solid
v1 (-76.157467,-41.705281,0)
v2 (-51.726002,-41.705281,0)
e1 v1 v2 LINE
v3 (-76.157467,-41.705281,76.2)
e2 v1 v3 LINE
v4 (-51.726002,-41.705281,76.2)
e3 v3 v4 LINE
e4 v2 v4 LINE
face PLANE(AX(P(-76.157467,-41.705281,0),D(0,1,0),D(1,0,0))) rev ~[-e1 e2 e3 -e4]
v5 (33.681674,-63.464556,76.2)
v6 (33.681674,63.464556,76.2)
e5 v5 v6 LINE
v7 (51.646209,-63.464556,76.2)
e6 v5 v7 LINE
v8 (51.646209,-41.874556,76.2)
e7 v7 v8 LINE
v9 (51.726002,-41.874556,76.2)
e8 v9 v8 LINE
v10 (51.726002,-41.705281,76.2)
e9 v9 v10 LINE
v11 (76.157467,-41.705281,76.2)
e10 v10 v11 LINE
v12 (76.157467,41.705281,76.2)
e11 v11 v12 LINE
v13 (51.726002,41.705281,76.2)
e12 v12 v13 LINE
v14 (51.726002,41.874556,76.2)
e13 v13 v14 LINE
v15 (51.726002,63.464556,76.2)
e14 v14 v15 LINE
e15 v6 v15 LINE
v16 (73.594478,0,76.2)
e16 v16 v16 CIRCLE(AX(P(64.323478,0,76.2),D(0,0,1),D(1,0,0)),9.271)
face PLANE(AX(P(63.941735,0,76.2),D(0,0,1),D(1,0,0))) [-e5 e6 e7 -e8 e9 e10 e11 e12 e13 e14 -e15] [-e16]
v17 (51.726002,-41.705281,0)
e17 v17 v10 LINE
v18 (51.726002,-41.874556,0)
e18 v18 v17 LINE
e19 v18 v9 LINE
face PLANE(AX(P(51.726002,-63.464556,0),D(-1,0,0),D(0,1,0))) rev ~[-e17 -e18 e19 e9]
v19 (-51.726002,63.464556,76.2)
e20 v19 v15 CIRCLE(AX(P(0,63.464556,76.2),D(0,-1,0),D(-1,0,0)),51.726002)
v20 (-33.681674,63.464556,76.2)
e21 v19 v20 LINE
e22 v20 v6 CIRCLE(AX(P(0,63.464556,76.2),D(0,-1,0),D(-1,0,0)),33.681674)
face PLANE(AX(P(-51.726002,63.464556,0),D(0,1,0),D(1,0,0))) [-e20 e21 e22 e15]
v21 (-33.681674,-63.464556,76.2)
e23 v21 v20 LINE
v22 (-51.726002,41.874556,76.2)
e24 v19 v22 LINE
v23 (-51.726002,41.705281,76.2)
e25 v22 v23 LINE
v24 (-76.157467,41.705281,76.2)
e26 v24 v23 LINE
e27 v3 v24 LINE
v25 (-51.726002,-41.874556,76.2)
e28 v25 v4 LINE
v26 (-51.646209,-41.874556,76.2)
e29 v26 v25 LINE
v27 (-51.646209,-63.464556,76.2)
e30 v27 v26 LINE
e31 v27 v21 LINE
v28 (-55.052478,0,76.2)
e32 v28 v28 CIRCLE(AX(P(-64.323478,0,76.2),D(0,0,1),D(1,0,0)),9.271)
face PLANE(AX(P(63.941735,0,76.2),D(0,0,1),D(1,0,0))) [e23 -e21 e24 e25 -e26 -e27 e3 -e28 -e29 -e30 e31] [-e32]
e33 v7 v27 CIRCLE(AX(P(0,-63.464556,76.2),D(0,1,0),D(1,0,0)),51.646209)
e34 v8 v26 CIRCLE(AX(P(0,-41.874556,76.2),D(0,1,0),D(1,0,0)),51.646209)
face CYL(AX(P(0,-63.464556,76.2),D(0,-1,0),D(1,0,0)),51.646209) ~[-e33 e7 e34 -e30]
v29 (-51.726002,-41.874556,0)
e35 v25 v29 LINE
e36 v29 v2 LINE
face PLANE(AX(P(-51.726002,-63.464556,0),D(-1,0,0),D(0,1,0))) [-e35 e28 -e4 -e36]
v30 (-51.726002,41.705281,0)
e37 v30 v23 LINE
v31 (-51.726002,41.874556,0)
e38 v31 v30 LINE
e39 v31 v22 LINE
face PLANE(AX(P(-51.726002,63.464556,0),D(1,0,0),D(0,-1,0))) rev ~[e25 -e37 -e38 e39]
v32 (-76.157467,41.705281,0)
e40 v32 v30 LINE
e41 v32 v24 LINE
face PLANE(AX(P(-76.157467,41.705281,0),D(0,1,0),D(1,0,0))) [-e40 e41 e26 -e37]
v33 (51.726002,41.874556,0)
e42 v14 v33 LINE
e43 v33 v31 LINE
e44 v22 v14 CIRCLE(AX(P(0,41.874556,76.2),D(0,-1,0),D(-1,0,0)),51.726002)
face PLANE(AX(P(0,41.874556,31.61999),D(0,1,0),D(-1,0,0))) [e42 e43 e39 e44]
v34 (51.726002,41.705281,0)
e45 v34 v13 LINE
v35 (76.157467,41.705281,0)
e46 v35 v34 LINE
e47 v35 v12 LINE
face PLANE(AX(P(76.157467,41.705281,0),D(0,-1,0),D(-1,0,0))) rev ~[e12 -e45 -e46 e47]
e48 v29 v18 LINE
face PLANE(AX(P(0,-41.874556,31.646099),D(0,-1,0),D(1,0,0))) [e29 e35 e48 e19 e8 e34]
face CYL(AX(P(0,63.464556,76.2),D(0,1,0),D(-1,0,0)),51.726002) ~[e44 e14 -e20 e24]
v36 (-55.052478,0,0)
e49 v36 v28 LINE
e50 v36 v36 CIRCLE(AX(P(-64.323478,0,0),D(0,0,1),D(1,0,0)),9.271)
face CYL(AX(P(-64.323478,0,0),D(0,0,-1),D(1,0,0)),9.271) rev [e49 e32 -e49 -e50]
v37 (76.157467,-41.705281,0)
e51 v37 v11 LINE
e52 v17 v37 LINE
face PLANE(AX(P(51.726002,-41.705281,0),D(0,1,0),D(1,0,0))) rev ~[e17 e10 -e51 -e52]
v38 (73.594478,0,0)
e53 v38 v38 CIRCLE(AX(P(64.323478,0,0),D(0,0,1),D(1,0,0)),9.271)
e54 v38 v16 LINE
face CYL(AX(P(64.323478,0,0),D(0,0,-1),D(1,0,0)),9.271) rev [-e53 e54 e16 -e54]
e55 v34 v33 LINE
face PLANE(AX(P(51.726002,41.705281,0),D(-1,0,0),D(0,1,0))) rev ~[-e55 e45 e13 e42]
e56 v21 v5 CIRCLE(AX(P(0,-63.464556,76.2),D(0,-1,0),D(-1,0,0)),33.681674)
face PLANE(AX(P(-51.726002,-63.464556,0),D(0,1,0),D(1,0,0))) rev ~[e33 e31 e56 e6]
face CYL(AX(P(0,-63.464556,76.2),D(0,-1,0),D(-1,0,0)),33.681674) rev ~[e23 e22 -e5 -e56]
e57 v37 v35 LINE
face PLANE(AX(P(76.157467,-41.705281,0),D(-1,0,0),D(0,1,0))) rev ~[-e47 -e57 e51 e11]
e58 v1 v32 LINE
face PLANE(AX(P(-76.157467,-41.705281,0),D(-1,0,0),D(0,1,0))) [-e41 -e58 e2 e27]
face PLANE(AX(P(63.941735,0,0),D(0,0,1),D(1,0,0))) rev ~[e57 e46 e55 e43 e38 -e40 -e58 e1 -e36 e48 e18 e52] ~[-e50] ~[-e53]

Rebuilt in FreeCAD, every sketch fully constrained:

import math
import FreeCAD as App
import Part
import Sketcher
Q = App.Units.Quantity

doc = App.newDocument("Part")
params = doc.addObject("Spreadsheet::Sheet", "Params")
for row, (alias, value) in enumerate([
    ("sketch1_diameter", "0.73 in"),
    ("pad1_length", "3 in"),
    ("pocket1_length", "6.81 in"),
    ("sketch3_height", "3 in"),
    ("pocket2_length", "0.85 in"),
    ("sketch4_height", "3 in"),
    ("pocket3_length", "0.85 in"),
], start=1):
    params.set(f"A{row}", alias)
    params.set(f"B{row}", "=" + value)
    params.setAlias(f"B{row}", alias)

body = doc.addObject("PartDesign::Body", "Body")

sketch1 = body.newObject("Sketcher::SketchObject", "Sketch")
sketch1.AttachmentSupport = (doc.getObject("XY_Plane"), [""])
sketch1.MapMode = "FlatFace"
sketch1.addGeometry(Part.LineSegment(App.Vector(76, -42, 0), App.Vector(76, 42, 0)), False)
sketch1.addGeometry(Part.LineSegment(App.Vector(76, 42, 0), App.Vector(52, 42, 0)), False)
sketch1.addGeometry(Part.LineSegment(App.Vector(52, 42, 0), App.Vector(52, 63, 0)), False)
sketch1.addGeometry(Part.LineSegment(App.Vector(52, 63, 0), App.Vector(-52, 63, 0)), False)
sketch1.addGeometry(Part.LineSegment(App.Vector(-52, 63, 0), App.Vector(-52, 42, 0)), False)
sketch1.addGeometry(Part.LineSegment(App.Vector(-52, 42, 0), App.Vector(-76, 42, 0)), False)
sketch1.addGeometry(Part.LineSegment(App.Vector(-76, 42, 0), App.Vector(-76, -42, 0)), False)
sketch1.addGeometry(Part.LineSegment(App.Vector(-76, -42, 0), App.Vector(-52, -42, 0)), False)
sketch1.addGeometry(Part.LineSegment(App.Vector(-52, -42, 0), App.Vector(-52, -63, 0)), False)
sketch1.addGeometry(Part.LineSegment(App.Vector(-52, -63, 0), App.Vector(52, -63, 0)), False)
sketch1.addGeometry(Part.LineSegment(App.Vector(52, -63, 0), App.Vector(52, -42, 0)), False)
sketch1.addGeometry(Part.LineSegment(App.Vector(52, -42, 0), App.Vector(76, -42, 0)), False)
sketch1.addGeometry(Part.Circle(App.Vector(-64, 0, 0), App.Vector(0, 0, 1), 9), False)
sketch1.addGeometry(Part.Circle(App.Vector(64, 0, 0), App.Vector(0, 0, 1), 9), False)
sketch1.addConstraint(Sketcher.Constraint("Coincident", 0, 2, 1, 1))
sketch1.addConstraint(Sketcher.Constraint("Coincident", 1, 2, 2, 1))
sketch1.addConstraint(Sketcher.Constraint("Coincident", 2, 2, 3, 1))
sketch1.addConstraint(Sketcher.Constraint("Coincident", 3, 2, 4, 1))
sketch1.addConstraint(Sketcher.Constraint("Coincident", 4, 2, 5, 1))
sketch1.addConstraint(Sketcher.Constraint("Coincident", 5, 2, 6, 1))
sketch1.addConstraint(Sketcher.Constraint("Coincident", 6, 2, 7, 1))
sketch1.addConstraint(Sketcher.Constraint("Coincident", 7, 2, 8, 1))
sketch1.addConstraint(Sketcher.Constraint("Coincident", 8, 2, 9, 1))
sketch1.addConstraint(Sketcher.Constraint("Coincident", 9, 2, 10, 1))
sketch1.addConstraint(Sketcher.Constraint("Coincident", 10, 2, 11, 1))
sketch1.addConstraint(Sketcher.Constraint("Coincident", 11, 2, 0, 1))
sketch1.addConstraint(Sketcher.Constraint("Vertical", 0))
sketch1.addConstraint(Sketcher.Constraint("Horizontal", 1))
sketch1.addConstraint(Sketcher.Constraint("Vertical", 2))
sketch1.addConstraint(Sketcher.Constraint("Horizontal", 3))
sketch1.addConstraint(Sketcher.Constraint("Vertical", 4))
sketch1.addConstraint(Sketcher.Constraint("Horizontal", 5))
sketch1.addConstraint(Sketcher.Constraint("Vertical", 6))
sketch1.addConstraint(Sketcher.Constraint("Horizontal", 7))
sketch1.addConstraint(Sketcher.Constraint("Vertical", 8))
sketch1.addConstraint(Sketcher.Constraint("Horizontal", 9))
sketch1.addConstraint(Sketcher.Constraint("Vertical", 10))
sketch1.addConstraint(Sketcher.Constraint("Horizontal", 11))
sketch1.addConstraint(Sketcher.Constraint("Equal", 12, 13))
sketch1.addConstraint(Sketcher.Constraint("Symmetric", 12, 3, 13, 3, -1, 1))
sketch1.addConstraint(Sketcher.Constraint("Symmetric", 0, 2, 6, 2, -1, 1))
sketch1.addConstraint(Sketcher.Constraint("Symmetric", 2, 2, 8, 2, -1, 1))
sketch1.addConstraint(Sketcher.Constraint("Symmetric", 4, 2, 10, 2, -1, 1))
sketch1.addConstraint(Sketcher.Constraint("Symmetric", 1, 2, 4, 2, -2))
sketch1.addConstraint(Sketcher.Constraint("PointOnObject", 12, 3, -1))
sketch1.addConstraint(Sketcher.Constraint("Diameter", 12, Q("0.73 in")))
sketch1.addConstraint(Sketcher.Constraint("DistanceX", -1, 1, 1, 2, Q("51.726002 mm")))
sketch1.addConstraint(Sketcher.Constraint("DistanceX", 1, 2, 1, 1, Q("24.431465 mm")))
sketch1.addConstraint(Sketcher.Constraint("DistanceY", 0, 1, 0, 2, Q("83.410562 mm")))
sketch1.addConstraint(Sketcher.Constraint("DistanceY", 2, 1, 2, 2, Q("21.759275 mm")))
sketch1.addConstraint(Sketcher.Constraint("DistanceX", 12, 3, -1, 1, Q("64.323478 mm")))
sketch1.setExpression("Constraints[31]", "Params.sketch1_diameter")
pad1 = body.newObject("PartDesign::Pad", "Pad")
pad1.Profile = sketch1
pad1.setExpression("Length", "Params.pad1_length")

sketch2 = body.newObject("Sketcher::SketchObject", "Sketch001")
sketch2.AttachmentSupport = (doc.getObject("XZ_Plane"), [""])
sketch2.MapMode = "FlatFace"
sketch2.AttachmentOffset = App.Placement(App.Vector(0, 0, 63.464556), App.Rotation())
sketch2.addGeometry(Part.LineSegment(App.Vector(34, 76, 0), App.Vector(-34, 76, 0)), False)
sketch2.addGeometry(Part.ArcOfCircle(Part.Circle(App.Vector(0, 76, 0), App.Vector(0, 0, 1), 34), math.radians(180), math.radians(360)), False)
sketch2.addConstraint(Sketcher.Constraint("Coincident", 0, 1, 1, 2))
sketch2.addConstraint(Sketcher.Constraint("Coincident", 1, 1, 0, 2))
sketch2.addConstraint(Sketcher.Constraint("Horizontal", 0))
sketch2.addConstraint(Sketcher.Constraint("PointOnObject", 1, 3, -2))
sketch2.addConstraint(Sketcher.Constraint("Horizontal", 1, 3, 0, 1))
sketch2.addConstraint(Sketcher.Constraint("DistanceY", -1, 1, 1, 3, Q("3 in")))
sketch2.addConstraint(Sketcher.Constraint("Radius", 1, Q("33.681674 mm")))
pocket1 = body.newObject("PartDesign::Pocket", "Pocket")
pocket1.Profile = sketch2
pocket1.setExpression("Length", "Params.pocket1_length")

sketch3 = body.newObject("Sketcher::SketchObject", "Sketch002")
sketch3.AttachmentSupport = (doc.getObject("XZ_Plane"), [""])
sketch3.MapMode = "FlatFace"
sketch3.AttachmentOffset = App.Placement(App.Vector(0, 0, 63.464556), App.Rotation())
sketch3.addGeometry(Part.ArcOfCircle(Part.Circle(App.Vector(0, 76.2, 0), App.Vector(0, 0, 1), 51.65), math.radians(180), math.radians(360)), False)
sketch3.addGeometry(Part.LineSegment(App.Vector(-51.65, 76.2, 0), App.Vector(-51.73, 76.2, 0)), False)
sketch3.addGeometry(Part.LineSegment(App.Vector(-51.73, 76.2, 0), App.Vector(-51.73, 0, 0)), False)
sketch3.addGeometry(Part.LineSegment(App.Vector(-51.73, 0, 0), App.Vector(51.73, 0, 0)), False)
sketch3.addGeometry(Part.LineSegment(App.Vector(51.73, 0, 0), App.Vector(51.73, 76.2, 0)), False)
sketch3.addGeometry(Part.LineSegment(App.Vector(51.73, 76.2, 0), App.Vector(51.65, 76.2, 0)), False)
sketch3.addConstraint(Sketcher.Constraint("Coincident", 0, 1, 1, 1))
sketch3.addConstraint(Sketcher.Constraint("Coincident", 1, 2, 2, 1))
sketch3.addConstraint(Sketcher.Constraint("Coincident", 2, 2, 3, 1))
sketch3.addConstraint(Sketcher.Constraint("Coincident", 3, 2, 4, 1))
sketch3.addConstraint(Sketcher.Constraint("Coincident", 4, 2, 5, 1))
sketch3.addConstraint(Sketcher.Constraint("Coincident", 5, 2, 0, 2))
sketch3.addConstraint(Sketcher.Constraint("Horizontal", 1))
sketch3.addConstraint(Sketcher.Constraint("Vertical", 2))
sketch3.addConstraint(Sketcher.Constraint("Horizontal", 3))
sketch3.addConstraint(Sketcher.Constraint("Vertical", 4))
sketch3.addConstraint(Sketcher.Constraint("Horizontal", 5))
sketch3.addConstraint(Sketcher.Constraint("Symmetric", 2, 2, 3, 2, -1, 1))
sketch3.addConstraint(Sketcher.Constraint("Symmetric", 0, 1, 5, 2, -2))
sketch3.addConstraint(Sketcher.Constraint("DistanceY", 2, 2, 2, 1, Q("3 in")))
sketch3.addConstraint(Sketcher.Constraint("DistanceY", -1, 1, 0, 3, Q("3 in")))
sketch3.addConstraint(Sketcher.Constraint("Radius", 0, Q("51.646209 mm")))
sketch3.addConstraint(Sketcher.Constraint("DistanceX", 1, 2, -1, 1, Q("51.726002 mm")))
sketch3.setExpression("Constraints[13]", "Params.sketch3_height")
pocket2 = body.newObject("PartDesign::Pocket", "Pocket001")
pocket2.Profile = sketch3
pocket2.setExpression("Length", "Params.pocket2_length")

sketch4 = body.newObject("Sketcher::SketchObject", "Sketch003")
sketch4.AttachmentSupport = (doc.getObject("XZ_Plane"), [""])
sketch4.MapMode = "FlatFace"
sketch4.AttachmentOffset = App.Placement(App.Vector(0, 0, -63.464556), App.Rotation())
sketch4.addGeometry(Part.ArcOfCircle(Part.Circle(App.Vector(0, 76, 0), App.Vector(0, 0, 1), 52), math.radians(180), math.radians(360)), False)
sketch4.addGeometry(Part.LineSegment(App.Vector(52, 76, 0), App.Vector(52, 0, 0)), False)
sketch4.addGeometry(Part.LineSegment(App.Vector(52, 0, 0), App.Vector(-52, 0, 0)), False)
sketch4.addGeometry(Part.LineSegment(App.Vector(-52, 0, 0), App.Vector(-52, 76, 0)), False)
sketch4.addConstraint(Sketcher.Constraint("Tangent", 0, 2, 1, 1))
sketch4.addConstraint(Sketcher.Constraint("Coincident", 1, 2, 2, 1))
sketch4.addConstraint(Sketcher.Constraint("Coincident", 2, 2, 3, 1))
sketch4.addConstraint(Sketcher.Constraint("Tangent", 3, 2, 0, 1))
sketch4.addConstraint(Sketcher.Constraint("Vertical", 1))
sketch4.addConstraint(Sketcher.Constraint("Horizontal", 2))
sketch4.addConstraint(Sketcher.Constraint("Vertical", 3))
sketch4.addConstraint(Sketcher.Constraint("Symmetric", 1, 2, 2, 2, -1, 1))
sketch4.addConstraint(Sketcher.Constraint("DistanceY", 1, 2, 1, 1, Q("3 in")))
sketch4.addConstraint(Sketcher.Constraint("Radius", 0, Q("51.726002 mm")))
sketch4.setExpression("Constraints[8]", "Params.sketch4_height")
pocket3 = body.newObject("PartDesign::Pocket", "Pocket002")
pocket3.Profile = sketch4
pocket3.setExpression("Length", "Params.pocket3_length")
pocket3.Reversed = True

doc.recompute()
